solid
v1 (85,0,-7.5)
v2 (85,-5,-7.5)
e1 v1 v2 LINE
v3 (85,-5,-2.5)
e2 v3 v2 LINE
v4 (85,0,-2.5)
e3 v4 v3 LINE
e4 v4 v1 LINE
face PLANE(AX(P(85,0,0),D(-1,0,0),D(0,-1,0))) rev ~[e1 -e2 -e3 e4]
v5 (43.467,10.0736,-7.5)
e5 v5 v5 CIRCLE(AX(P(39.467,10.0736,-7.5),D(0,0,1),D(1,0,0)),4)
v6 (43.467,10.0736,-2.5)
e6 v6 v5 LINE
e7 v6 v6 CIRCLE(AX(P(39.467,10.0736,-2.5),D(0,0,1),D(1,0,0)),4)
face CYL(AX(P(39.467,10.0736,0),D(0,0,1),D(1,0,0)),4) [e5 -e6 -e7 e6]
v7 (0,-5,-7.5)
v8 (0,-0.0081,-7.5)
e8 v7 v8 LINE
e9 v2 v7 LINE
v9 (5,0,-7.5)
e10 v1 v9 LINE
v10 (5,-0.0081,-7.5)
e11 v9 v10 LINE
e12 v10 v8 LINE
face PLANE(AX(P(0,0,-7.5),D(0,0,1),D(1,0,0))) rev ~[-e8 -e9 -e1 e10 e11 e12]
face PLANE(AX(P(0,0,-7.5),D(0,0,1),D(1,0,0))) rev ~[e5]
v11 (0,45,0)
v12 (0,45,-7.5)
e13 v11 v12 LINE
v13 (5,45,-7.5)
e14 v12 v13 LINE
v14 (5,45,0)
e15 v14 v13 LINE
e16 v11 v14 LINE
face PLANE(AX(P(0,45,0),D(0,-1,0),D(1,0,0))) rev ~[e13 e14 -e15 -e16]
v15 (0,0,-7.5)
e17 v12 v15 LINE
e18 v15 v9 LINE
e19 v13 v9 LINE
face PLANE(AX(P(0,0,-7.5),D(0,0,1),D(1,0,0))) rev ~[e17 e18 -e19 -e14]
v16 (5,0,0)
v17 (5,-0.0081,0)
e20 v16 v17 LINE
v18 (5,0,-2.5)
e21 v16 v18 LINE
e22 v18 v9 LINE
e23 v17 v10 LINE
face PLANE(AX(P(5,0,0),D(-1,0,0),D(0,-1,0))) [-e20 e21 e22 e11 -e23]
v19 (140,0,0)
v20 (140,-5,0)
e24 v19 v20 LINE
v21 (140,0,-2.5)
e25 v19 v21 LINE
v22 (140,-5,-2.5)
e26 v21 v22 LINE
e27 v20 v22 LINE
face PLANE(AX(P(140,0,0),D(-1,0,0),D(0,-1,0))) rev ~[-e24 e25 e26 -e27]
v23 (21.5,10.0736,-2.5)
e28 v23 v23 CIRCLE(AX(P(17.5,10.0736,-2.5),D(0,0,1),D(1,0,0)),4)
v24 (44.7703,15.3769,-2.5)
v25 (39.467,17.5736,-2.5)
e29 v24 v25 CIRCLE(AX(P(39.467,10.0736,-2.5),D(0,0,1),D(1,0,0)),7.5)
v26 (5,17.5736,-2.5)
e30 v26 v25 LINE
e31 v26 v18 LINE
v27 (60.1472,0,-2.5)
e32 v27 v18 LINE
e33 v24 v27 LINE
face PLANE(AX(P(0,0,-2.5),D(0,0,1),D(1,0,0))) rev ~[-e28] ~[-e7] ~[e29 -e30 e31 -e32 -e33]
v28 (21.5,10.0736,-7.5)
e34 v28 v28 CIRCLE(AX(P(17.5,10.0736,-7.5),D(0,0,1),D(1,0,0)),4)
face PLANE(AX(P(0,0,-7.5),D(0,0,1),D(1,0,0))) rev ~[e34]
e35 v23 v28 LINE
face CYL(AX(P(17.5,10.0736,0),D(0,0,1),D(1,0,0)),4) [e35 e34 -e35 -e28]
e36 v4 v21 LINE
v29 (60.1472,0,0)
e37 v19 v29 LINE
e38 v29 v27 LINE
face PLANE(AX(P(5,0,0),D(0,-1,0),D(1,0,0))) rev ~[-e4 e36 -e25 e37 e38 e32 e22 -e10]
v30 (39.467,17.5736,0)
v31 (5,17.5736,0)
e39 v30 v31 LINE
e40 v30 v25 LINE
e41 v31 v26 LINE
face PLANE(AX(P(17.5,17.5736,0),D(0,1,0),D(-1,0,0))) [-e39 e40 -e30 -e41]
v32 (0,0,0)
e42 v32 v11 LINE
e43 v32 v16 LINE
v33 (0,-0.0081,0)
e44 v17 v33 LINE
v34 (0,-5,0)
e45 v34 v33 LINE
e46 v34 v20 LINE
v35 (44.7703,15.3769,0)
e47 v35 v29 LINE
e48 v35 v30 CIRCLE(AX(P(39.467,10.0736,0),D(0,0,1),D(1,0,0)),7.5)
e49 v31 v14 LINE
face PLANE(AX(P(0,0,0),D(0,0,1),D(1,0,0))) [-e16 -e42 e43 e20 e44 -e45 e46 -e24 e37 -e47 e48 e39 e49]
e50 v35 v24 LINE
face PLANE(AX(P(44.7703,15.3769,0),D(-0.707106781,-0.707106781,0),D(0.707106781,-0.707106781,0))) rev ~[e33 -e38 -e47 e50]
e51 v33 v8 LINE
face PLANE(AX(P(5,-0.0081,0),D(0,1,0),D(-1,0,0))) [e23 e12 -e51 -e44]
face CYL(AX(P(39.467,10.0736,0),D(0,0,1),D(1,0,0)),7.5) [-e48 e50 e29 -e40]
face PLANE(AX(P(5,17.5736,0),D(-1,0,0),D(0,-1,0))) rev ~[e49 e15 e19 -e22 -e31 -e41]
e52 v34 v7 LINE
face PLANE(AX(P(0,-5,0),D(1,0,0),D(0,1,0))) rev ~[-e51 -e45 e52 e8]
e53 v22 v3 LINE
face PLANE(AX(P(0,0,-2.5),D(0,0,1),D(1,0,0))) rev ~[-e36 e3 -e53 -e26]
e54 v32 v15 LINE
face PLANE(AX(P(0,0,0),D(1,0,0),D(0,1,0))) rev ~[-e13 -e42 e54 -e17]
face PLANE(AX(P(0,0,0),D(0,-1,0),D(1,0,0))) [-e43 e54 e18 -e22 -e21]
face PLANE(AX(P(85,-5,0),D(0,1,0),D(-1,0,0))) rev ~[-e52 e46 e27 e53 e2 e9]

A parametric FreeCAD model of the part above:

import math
import FreeCAD as App
import Part
import Sketcher
Q = App.Units.Quantity

doc = App.newDocument("Part")
body = doc.addObject("PartDesign::Body", "Body")
body.AllowCompound = True

# Sketch on XY plane
sketch1 = body.newObject("Sketcher::SketchObject", "Sketch")
sketch1.AttachmentSupport = (doc.getObject("XY_Plane"), [""])
sketch1.MapMode = "FlatFace"
sketch1.addGeometry(Part.LineSegment(App.Vector(0, 45, 0), App.Vector(0, 0, 0)), False)
sketch1.addGeometry(Part.LineSegment(App.Vector(0, 0, 0), App.Vector(5, 0, 0)), False)
sketch1.addGeometry(Part.LineSegment(App.Vector(5, 0, 0), App.Vector(5, 45, 0)), False)
sketch1.addGeometry(Part.LineSegment(App.Vector(5, 45, 0), App.Vector(0, 45, 0)), False)
sketch1.addGeometry(Part.LineSegment(App.Vector(85, 0, 0), App.Vector(5, 0, 0)), False)
sketch1.addGeometry(Part.LineSegment(App.Vector(5, 0, 0), App.Vector(5, -0.008, 0)), False)
sketch1.addGeometry(Part.LineSegment(App.Vector(5, -0.008, 0), App.Vector(0, -0.008, 0)), False)
sketch1.addGeometry(Part.LineSegment(App.Vector(0, -0.008, 0), App.Vector(0, -5, 0)), False)
sketch1.addGeometry(Part.LineSegment(App.Vector(0, -5, 0), App.Vector(85, -5, 0)), False)
sketch1.addGeometry(Part.LineSegment(App.Vector(85, -5, 0), App.Vector(85, 0, 0)), False)
sketch1.addGeometry(Part.Circle(App.Vector(17.5, 10.074, 0), App.Vector(0, 0, 1), 4), False)
sketch1.addGeometry(Part.Circle(App.Vector(39.467, 10.074, 0), App.Vector(0, 0, 1), 4), False)
sketch1.addConstraint(Sketcher.Constraint("Coincident", 0, 2, 1, 1))
sketch1.addConstraint(Sketcher.Constraint("Coincident", 1, 2, 2, 1))
sketch1.addConstraint(Sketcher.Constraint("Coincident", 2, 2, 3, 1))
sketch1.addConstraint(Sketcher.Constraint("Coincident", 3, 2, 0, 1))
sketch1.addConstraint(Sketcher.Constraint("Coincident", 4, 2, 5, 1))
sketch1.addConstraint(Sketcher.Constraint("Coincident", 5, 2, 6, 1))
sketch1.addConstraint(Sketcher.Constraint("Coincident", 6, 2, 7, 1))
sketch1.addConstraint(Sketcher.Constraint("Coincident", 7, 2, 8, 1))
sketch1.addConstraint(Sketcher.Constraint("Coincident", 8, 2, 9, 1))
sketch1.addConstraint(Sketcher.Constraint("Coincident", 9, 2, 4, 1))
sketch1.addConstraint(Sketcher.Constraint("Vertical", 0))
sketch1.addConstraint(Sketcher.Constraint("Horizontal", 1))
sketch1.addConstraint(Sketcher.Constraint("Vertical", 2))
sketch1.addConstraint(Sketcher.Constraint("Horizontal", 3))
sketch1.addConstraint(Sketcher.Constraint("Horizontal", 4))
sketch1.addConstraint(Sketcher.Constraint("Vertical", 5))
sketch1.addConstraint(Sketcher.Constraint("Horizontal", 6))
sketch1.addConstraint(Sketcher.Constraint("Vertical", 7))
sketch1.addConstraint(Sketcher.Constraint("Horizontal", 8))
sketch1.addConstraint(Sketcher.Constraint("Vertical", 9))
sketch1.addConstraint(Sketcher.Constraint("Coincident", 0, 2, -1, 1))
sketch1.addConstraint(Sketcher.Constraint("Coincident", 4, 2, 1, 2))
sketch1.addConstraint(Sketcher.Constraint("Equal", 10, 11))
sketch1.addConstraint(Sketcher.Constraint("PointOnObject", 6, 2, -2))
sketch1.addConstraint(Sketcher.Constraint("Horizontal", 10, 3, 11, 3))
sketch1.addConstraint(Sketcher.Constraint("Equal", 6, 9))
sketch1.addConstraint(Sketcher.Constraint("Diameter", 10, Q("8 mm")))
sketch1.addConstraint(Sketcher.Constraint("DistanceX", 1, 1, 1, 2, Q("5 mm")))
sketch1.addConstraint(Sketcher.Constraint("DistanceY", 0, 2, 0, 1, Q("45 mm")))
sketch1.addConstraint(Sketcher.Constraint("DistanceX", 4, 2, 4, 1, Q("80 mm")))
sketch1.addConstraint(Sketcher.Constraint("DistanceX", -1, 1, 10, 3, Q("17.5 mm")))
sketch1.addConstraint(Sketcher.Constraint("DistanceY", 5, 2, 5, 1, Q("0.008 mm")))
sketch1.addConstraint(Sketcher.Constraint("DistanceX", -1, 1, 11, 3, Q("39.467 mm")))
sketch1.addConstraint(Sketcher.Constraint("DistanceY", -1, 1, 10, 3, Q("10.0736 mm")))
pad1 = body.newObject("PartDesign::Pad", "Pad")
pad1.Profile = sketch1
pad1.Length = 7.5
pad1.Reversed = True

# Sketch on XY plane
sketch2 = body.newObject("Sketcher::SketchObject", "Sketch001")
sketch2.AttachmentSupport = (doc.getObject("XY_Plane"), [""])
sketch2.MapMode = "FlatFace"
sketch2.addGeometry(Part.LineSegment(App.Vector(5, 17.6, 0), App.Vector(5, 0, 0)), False)
sketch2.addGeometry(Part.LineSegment(App.Vector(5, 0, 0), App.Vector(60.1, 0, 0)), False)
sketch2.addGeometry(Part.LineSegment(App.Vector(60.1, 0, 0), App.Vector(44.8, 15.4, 0)), False)
sketch2.addGeometry(Part.ArcOfCircle(Part.Circle(App.Vector(39.5, 10.1, 0), App.Vector(0, 0, 1), 7.5), math.radians(45), math.radians(90)), False)
sketch2.addGeometry(Part.LineSegment(App.Vector(39.5, 17.6, 0), App.Vector(5, 17.6, 0)), False)
sketch2.addGeometry(Part.Circle(App.Vector(17.5, 10.1, 0), App.Vector(0, 0, 1), 4), False)
sketch2.addGeometry(Part.Circle(App.Vector(39.5, 10.1, 0), App.Vector(0, 0, 1), 4), False)
sketch2.addGeometry(Part.LineSegment(App.Vector(85, 0, 0), App.Vector(85, -5, 0)), False)
sketch2.addGeometry(Part.LineSegment(App.Vector(85, -5, 0), App.Vector(140, -5, 0)), False)
sketch2.addGeometry(Part.LineSegment(App.Vector(140, -5, 0), App.Vector(140, 0, 0)), False)
sketch2.addGeometry(Part.LineSegment(App.Vector(140, 0, 0), App.Vector(85, 0, 0)), False)
sketch2.addConstraint(Sketcher.Constraint("Coincident", 0, 2, 1, 1))
sketch2.addConstraint(Sketcher.Constraint("Coincident", 1, 2, 2, 1))
sketch2.addConstraint(Sketcher.Constraint("Tangent", 2, 2, 3, 1))
sketch2.addConstraint(Sketcher.Constraint("Tangent", 3, 2, 4, 1))
sketch2.addConstraint(Sketcher.Constraint("Coincident", 4, 2, 0, 1))
sketch2.addConstraint(Sketcher.Constraint("Coincident", 7, 2, 8, 1))
sketch2.addConstraint(Sketcher.Constraint("Coincident", 8, 2, 9, 1))
sketch2.addConstraint(Sketcher.Constraint("Coincident", 9, 2, 10, 1))
sketch2.addConstraint(Sketcher.Constraint("Coincident", 10, 2, 7, 1))
sketch2.addConstraint(Sketcher.Constraint("Vertical", 0))
sketch2.addConstraint(Sketcher.Constraint("Horizontal", 1))
sketch2.addConstraint(Sketcher.Constraint("Horizontal", 4))
sketch2.addConstraint(Sketcher.Constraint("Vertical", 7))
sketch2.addConstraint(Sketcher.Constraint("Horizontal", 8))
sketch2.addConstraint(Sketcher.Constraint("Vertical", 9))
sketch2.addConstraint(Sketcher.Constraint("Horizontal", 10))
sketch2.addConstraint(Sketcher.Constraint("Coincident", 6, 3, 3, 3))
sketch2.addConstraint(Sketcher.Constraint("Equal", 5, 6))
sketch2.addConstraint(Sketcher.Constraint("PointOnObject", 0, 2, -1))
sketch2.addConstraint(Sketcher.Constraint("PointOnObject", 9, 2, -1))
sketch2.addConstraint(Sketcher.Constraint("Horizontal", 3, 3, 5, 3))
sketch2.addConstraint(Sketcher.Constraint("Diameter", 5, Q("8 mm")))
sketch2.addConstraint(Sketcher.Constraint("Radius", 3, Q("7.5 mm")))
sketch2.addConstraint(Sketcher.Constraint("DistanceY", 7, 2, 7, 1, Q("5 mm")))
sketch2.addConstraint(Sketcher.Constraint("Angle", 2, Q("135 deg")))
sketch2.addConstraint(Sketcher.Constraint("DistanceX", -1, 1, 0, 2, Q("5 mm")))
sketch2.addConstraint(Sketcher.Constraint("DistanceX", -1, 1, 8, 2, Q("140 mm")))
sketch2.addConstraint(Sketcher.Constraint("DistanceX", 8, 1, 8, 2, Q("55 mm")))
sketch2.addConstraint(Sketcher.Constraint("DistanceX", -1, 1, 5, 3, Q("17.5 mm")))
sketch2.addConstraint(Sketcher.Constraint("DistanceX", 4, 2, 4, 1, Q("34.467 mm")))
sketch2.addConstraint(Sketcher.Constraint("DistanceX", 1, 1, 1, 2, Q("55.1472 mm")))
pad2 = body.newObject("PartDesign::Pad", "Pad001")
pad2.Profile = sketch2
pad2.Length = 2.5
pad2.Reversed = True

doc.recompute()
